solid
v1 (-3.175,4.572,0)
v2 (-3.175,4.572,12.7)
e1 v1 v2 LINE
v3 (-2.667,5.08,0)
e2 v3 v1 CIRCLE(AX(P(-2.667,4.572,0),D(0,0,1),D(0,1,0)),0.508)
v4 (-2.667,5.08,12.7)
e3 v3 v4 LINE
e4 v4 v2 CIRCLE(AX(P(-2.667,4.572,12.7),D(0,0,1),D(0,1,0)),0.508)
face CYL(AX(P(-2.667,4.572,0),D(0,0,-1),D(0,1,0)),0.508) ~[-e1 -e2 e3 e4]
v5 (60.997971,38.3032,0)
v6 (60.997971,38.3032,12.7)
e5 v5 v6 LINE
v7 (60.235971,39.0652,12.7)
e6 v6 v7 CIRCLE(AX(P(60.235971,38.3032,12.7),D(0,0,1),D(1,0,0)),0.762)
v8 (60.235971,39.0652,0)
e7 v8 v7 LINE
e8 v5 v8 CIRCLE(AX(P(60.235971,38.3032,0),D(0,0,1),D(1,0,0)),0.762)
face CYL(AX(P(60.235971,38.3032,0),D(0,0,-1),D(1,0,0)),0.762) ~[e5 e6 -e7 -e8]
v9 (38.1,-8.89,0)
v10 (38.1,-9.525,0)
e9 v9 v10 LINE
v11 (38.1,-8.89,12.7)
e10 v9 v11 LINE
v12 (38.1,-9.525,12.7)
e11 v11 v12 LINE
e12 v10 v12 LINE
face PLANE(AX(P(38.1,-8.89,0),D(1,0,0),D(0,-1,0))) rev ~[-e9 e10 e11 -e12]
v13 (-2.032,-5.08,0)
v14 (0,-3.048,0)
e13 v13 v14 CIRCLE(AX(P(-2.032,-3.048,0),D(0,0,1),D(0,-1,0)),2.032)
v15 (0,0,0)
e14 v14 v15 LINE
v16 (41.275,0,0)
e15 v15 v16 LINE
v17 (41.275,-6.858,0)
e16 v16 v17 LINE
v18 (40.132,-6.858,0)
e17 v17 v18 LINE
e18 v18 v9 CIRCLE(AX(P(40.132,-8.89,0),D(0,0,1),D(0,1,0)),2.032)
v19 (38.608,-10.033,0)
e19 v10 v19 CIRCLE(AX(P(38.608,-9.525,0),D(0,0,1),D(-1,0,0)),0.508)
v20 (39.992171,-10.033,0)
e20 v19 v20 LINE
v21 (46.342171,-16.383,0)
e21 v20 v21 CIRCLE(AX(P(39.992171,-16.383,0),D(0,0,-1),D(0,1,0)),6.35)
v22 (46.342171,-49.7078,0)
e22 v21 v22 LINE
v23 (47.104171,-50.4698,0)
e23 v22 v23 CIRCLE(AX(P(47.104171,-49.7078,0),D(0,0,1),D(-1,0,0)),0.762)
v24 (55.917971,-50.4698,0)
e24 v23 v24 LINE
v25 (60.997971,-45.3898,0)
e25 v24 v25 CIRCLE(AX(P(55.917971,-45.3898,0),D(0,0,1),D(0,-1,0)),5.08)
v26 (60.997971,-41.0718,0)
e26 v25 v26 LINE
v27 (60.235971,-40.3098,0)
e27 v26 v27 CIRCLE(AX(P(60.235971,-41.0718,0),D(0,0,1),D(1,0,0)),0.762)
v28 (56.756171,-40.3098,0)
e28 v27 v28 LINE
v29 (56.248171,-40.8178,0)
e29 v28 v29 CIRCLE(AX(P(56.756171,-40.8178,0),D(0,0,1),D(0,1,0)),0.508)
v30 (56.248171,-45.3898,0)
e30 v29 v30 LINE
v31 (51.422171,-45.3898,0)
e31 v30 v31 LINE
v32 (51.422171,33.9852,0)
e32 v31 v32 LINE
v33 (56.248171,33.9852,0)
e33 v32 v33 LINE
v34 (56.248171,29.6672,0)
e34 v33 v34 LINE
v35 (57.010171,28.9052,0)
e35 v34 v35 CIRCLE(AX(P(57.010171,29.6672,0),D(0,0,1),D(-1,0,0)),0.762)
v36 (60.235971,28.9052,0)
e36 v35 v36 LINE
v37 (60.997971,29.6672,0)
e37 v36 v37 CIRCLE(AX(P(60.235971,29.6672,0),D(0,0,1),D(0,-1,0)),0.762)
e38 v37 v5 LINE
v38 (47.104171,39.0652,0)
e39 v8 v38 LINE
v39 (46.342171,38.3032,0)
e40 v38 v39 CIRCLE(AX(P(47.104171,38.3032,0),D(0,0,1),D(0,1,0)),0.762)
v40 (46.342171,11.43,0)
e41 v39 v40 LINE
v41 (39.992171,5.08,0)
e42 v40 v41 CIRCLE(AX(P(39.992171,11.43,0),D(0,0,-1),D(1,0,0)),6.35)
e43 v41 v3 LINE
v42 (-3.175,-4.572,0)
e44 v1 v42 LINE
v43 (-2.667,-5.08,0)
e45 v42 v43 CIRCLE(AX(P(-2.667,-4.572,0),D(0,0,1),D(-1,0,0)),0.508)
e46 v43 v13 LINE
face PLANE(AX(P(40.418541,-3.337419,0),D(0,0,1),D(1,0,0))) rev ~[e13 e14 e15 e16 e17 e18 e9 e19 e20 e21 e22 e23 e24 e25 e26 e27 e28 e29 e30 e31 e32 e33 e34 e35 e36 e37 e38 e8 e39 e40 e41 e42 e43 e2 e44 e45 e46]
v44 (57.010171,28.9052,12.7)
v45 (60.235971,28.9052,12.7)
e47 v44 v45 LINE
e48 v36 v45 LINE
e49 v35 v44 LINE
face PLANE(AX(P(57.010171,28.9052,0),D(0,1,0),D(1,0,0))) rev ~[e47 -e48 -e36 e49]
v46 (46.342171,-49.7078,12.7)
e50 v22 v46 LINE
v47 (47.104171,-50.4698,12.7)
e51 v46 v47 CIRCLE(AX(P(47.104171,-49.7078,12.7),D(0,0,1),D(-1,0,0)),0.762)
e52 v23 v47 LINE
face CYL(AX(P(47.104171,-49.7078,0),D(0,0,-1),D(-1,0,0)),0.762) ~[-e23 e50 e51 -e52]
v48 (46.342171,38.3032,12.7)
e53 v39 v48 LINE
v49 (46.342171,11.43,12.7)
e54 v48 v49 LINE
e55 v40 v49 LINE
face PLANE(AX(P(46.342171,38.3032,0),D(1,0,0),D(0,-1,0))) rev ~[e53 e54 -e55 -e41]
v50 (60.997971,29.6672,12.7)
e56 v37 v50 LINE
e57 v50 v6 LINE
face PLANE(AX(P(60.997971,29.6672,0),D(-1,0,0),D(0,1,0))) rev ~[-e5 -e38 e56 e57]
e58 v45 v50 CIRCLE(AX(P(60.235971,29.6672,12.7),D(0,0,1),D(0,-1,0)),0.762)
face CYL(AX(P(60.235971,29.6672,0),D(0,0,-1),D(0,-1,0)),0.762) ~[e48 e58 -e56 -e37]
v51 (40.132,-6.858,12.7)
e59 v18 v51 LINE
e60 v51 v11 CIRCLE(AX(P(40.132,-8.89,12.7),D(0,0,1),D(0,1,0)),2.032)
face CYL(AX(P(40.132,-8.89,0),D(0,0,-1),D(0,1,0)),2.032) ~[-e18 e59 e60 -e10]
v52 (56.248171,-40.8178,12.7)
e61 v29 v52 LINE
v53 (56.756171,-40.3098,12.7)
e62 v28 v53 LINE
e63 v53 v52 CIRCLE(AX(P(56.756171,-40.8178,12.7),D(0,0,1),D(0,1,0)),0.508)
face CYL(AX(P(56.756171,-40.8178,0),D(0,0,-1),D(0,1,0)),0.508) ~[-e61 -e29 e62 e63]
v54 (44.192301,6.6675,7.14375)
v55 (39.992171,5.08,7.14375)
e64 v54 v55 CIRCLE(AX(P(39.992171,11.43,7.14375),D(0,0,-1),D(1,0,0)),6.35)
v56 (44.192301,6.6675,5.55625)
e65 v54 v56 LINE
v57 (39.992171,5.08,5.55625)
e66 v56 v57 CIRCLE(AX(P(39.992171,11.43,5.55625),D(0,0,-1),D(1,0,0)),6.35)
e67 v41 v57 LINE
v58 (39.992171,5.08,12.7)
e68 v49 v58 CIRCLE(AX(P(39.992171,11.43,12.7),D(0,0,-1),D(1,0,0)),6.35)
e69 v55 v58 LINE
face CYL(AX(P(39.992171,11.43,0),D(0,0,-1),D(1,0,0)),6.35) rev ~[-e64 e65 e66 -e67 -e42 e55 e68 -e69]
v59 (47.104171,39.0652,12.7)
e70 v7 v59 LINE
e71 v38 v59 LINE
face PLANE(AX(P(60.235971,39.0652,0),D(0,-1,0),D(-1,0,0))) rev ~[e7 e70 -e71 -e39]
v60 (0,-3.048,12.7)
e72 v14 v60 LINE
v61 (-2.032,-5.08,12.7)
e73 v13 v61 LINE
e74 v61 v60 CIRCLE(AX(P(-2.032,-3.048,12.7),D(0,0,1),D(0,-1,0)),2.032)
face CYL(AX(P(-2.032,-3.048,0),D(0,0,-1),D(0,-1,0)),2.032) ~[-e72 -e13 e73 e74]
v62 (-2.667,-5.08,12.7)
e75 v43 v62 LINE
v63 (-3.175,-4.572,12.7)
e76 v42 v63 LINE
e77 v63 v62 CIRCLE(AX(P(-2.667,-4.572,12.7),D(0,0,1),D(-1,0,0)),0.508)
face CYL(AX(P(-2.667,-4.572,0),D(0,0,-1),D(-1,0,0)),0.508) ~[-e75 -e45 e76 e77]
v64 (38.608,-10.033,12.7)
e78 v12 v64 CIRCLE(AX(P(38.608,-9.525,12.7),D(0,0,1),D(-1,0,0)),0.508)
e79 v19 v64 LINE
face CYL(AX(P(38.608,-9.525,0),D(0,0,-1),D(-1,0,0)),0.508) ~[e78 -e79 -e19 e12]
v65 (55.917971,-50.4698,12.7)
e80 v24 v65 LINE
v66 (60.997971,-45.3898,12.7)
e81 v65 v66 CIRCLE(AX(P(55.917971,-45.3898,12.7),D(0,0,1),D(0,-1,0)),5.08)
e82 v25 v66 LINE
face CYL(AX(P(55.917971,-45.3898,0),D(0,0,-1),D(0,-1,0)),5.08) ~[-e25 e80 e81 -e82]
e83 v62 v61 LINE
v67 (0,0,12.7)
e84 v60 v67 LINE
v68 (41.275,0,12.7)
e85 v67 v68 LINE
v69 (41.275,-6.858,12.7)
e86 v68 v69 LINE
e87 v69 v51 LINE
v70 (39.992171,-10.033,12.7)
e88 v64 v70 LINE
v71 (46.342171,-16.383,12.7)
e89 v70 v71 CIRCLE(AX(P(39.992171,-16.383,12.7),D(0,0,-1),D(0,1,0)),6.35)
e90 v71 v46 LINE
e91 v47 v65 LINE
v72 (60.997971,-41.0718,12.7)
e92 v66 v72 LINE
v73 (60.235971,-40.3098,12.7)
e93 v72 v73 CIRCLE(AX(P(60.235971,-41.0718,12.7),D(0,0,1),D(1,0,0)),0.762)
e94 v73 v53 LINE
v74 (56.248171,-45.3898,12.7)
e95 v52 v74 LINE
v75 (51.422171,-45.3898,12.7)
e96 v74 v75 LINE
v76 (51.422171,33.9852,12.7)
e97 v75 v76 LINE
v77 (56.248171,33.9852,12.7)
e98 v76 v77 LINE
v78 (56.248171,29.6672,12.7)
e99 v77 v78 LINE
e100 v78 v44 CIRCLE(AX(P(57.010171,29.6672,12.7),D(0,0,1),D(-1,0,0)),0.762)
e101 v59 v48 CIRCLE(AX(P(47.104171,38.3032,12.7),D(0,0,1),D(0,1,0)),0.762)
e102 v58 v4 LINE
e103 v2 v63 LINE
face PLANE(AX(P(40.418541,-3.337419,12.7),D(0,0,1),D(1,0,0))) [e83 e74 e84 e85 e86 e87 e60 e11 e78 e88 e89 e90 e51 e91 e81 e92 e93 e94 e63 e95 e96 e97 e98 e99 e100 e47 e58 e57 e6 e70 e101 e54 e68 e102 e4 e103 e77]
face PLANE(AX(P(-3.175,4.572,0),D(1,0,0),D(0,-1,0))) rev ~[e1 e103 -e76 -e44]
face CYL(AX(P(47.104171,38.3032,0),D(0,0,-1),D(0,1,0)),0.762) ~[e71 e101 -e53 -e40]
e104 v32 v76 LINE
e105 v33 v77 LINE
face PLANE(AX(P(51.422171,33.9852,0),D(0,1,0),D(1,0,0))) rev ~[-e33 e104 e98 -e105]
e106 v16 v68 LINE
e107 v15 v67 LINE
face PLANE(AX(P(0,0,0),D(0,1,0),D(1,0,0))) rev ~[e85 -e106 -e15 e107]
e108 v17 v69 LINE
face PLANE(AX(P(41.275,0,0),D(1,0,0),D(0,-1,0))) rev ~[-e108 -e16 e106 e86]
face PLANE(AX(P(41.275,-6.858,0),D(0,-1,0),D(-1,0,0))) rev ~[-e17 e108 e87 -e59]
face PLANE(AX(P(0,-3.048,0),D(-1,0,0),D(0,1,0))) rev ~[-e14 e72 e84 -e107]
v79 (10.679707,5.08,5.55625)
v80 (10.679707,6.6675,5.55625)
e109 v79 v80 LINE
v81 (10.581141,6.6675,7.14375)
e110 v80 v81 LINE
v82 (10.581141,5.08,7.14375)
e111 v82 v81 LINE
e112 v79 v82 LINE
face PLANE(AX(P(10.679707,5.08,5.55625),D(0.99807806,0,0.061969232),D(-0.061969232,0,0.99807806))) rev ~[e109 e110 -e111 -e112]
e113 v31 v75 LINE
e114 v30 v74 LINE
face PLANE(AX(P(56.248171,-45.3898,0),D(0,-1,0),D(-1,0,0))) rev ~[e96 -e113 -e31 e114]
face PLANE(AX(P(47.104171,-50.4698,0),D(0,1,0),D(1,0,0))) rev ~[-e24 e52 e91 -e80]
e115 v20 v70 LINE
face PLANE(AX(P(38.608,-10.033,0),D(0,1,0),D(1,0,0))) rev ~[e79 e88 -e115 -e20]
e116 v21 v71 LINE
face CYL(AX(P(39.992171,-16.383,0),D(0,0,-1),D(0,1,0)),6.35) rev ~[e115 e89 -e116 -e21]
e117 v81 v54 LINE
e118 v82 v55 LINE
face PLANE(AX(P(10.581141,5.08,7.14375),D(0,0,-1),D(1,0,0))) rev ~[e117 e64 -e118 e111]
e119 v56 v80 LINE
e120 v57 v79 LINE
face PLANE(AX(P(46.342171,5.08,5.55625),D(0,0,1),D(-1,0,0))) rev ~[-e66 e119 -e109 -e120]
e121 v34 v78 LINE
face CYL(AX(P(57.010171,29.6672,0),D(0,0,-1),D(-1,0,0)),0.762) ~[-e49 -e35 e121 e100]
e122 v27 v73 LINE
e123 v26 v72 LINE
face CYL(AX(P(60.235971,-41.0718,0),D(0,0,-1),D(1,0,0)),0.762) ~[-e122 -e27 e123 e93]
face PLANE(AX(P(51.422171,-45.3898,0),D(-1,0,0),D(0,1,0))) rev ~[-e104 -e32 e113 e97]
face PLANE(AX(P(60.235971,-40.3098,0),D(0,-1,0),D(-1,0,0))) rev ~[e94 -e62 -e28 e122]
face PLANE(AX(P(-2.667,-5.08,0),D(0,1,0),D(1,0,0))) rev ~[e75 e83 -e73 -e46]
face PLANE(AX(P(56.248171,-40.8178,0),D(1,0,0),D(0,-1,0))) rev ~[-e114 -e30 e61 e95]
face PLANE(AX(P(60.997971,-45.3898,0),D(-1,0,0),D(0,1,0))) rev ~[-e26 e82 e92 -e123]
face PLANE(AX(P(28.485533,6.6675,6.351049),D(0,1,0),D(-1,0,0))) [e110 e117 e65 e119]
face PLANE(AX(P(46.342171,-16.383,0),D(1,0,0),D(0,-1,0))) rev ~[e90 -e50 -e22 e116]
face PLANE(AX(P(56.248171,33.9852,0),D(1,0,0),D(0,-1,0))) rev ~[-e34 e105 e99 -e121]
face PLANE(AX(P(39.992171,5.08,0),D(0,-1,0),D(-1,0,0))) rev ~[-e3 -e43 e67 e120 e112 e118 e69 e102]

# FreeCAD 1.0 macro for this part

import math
import FreeCAD as App
import Part
import Sketcher
from FreeCAD import Vector
Q = App.Units.Quantity


def add_polygon(sketch, points):
    """Adds a closed chain of lines whose ends are joined by coincident constraints."""
    first, n = sketch.GeometryCount, len(points)
    for a, b in zip(points, points[1:] + points[:1]):
        sketch.addGeometry(Part.LineSegment(App.Vector(*a, 0), App.Vector(*b, 0)), False)
    for i in range(n):
        sketch.addConstraint(Sketcher.Constraint("Coincident", first + i, 2, first + (i + 1) % n, 1))

doc = App.newDocument("Part")
body = doc.addObject("PartDesign::Body", "Body")

# Sketch on XY plane
sketch1 = body.newObject("Sketcher::SketchObject", "Sketch")
sketch1.AttachmentSupport = (doc.getObject("XY_Plane"), [""])
sketch1.MapMode = "FlatFace"
sketch1.addGeometry([
    Part.LineSegment(Vector(0, 0, 0), Vector(41.3, 0, 0)),  # 0
    Part.LineSegment(Vector(41.3, 0, 0), Vector(41.3, -6.9, 0)),  # 1
    Part.LineSegment(Vector(41.3, -6.9, 0), Vector(40.1, -6.9, 0)),  # 2
    Part.ArcOfCircle(Part.Circle(Vector(40.1, -8.9, 0), Vector(0, 0, 1), 2), math.radians(90), math.radians(180)),  # 3
    Part.LineSegment(Vector(38.1, -8.9, 0), Vector(38.1, -9.5, 0)),  # 4
    Part.ArcOfCircle(Part.Circle(Vector(38.6, -9.5, 0), Vector(0, 0, 1), 0.5), math.radians(180), math.radians(270)),  # 5
    Part.LineSegment(Vector(38.6, -10, 0), Vector(40, -10, 0)),  # 6
    Part.ArcOfCircle(Part.Circle(Vector(40, -16.4, 0), Vector(0, 0, 1), 6.3), math.radians(0), math.radians(90)),  # 7
    Part.LineSegment(Vector(46.3, -16.4, 0), Vector(46.3, -49.7, 0)),  # 8
    Part.ArcOfCircle(Part.Circle(Vector(47.1, -49.7, 0), Vector(0, 0, 1), 0.8), math.radians(180), math.radians(270)),  # 9
    Part.LineSegment(Vector(47.1, -50.5, 0), Vector(55.9, -50.5, 0)),  # 10
    Part.ArcOfCircle(Part.Circle(Vector(55.9, -45.4, 0), Vector(0, 0, 1), 5.1), math.radians(-90), math.radians(0)),  # 11
    Part.LineSegment(Vector(61, -45.4, 0), Vector(61, -41.1, 0)),  # 12
    Part.ArcOfCircle(Part.Circle(Vector(60.2, -41.1, 0), Vector(0, 0, 1), 0.8), math.radians(0), math.radians(90)),  # 13
    Part.LineSegment(Vector(60.2, -40.3, 0), Vector(56.8, -40.3, 0)),  # 14
    Part.ArcOfCircle(Part.Circle(Vector(56.8, -40.8, 0), Vector(0, 0, 1), 0.5), math.radians(90), math.radians(180)),  # 15
    Part.LineSegment(Vector(56.2, -40.8, 0), Vector(56.2, -45.4, 0)),  # 16
    Part.LineSegment(Vector(56.2, -45.4, 0), Vector(51.4, -45.4, 0)),  # 17
    Part.LineSegment(Vector(51.4, -45.4, 0), Vector(51.4, 34, 0)),  # 18
    Part.LineSegment(Vector(51.4, 34, 0), Vector(56.2, 34, 0)),  # 19
    Part.LineSegment(Vector(56.2, 34, 0), Vector(56.2, 29.7, 0)),  # 20
    Part.ArcOfCircle(Part.Circle(Vector(57, 29.7, 0), Vector(0, 0, 1), 0.8), math.radians(180), math.radians(270)),  # 21
    Part.LineSegment(Vector(57, 28.9, 0), Vector(60.2, 28.9, 0)),  # 22
    Part.ArcOfCircle(Part.Circle(Vector(60.2, 29.7, 0), Vector(0, 0, 1), 0.8), math.radians(-90), math.radians(0)),  # 23
    Part.LineSegment(Vector(61, 29.7, 0), Vector(61, 38.3, 0)),  # 24
    Part.ArcOfCircle(Part.Circle(Vector(60.2, 38.3, 0), Vector(0, 0, 1), 0.8), math.radians(0), math.radians(90)),  # 25
    Part.LineSegment(Vector(60.2, 39.1, 0), Vector(47.1, 39.1, 0)),  # 26
    Part.ArcOfCircle(Part.Circle(Vector(47.1, 38.3, 0), Vector(0, 0, 1), 0.8), math.radians(90), math.radians(180)),  # 27
    Part.LineSegment(Vector(46.3, 38.3, 0), Vector(46.3, 11.4, 0)),  # 28
    Part.ArcOfCircle(Part.Circle(Vector(40, 11.4, 0), Vector(0, 0, 1), 6.3), math.radians(-90), math.radians(0)),  # 29
    Part.LineSegment(Vector(40, 5.1, 0), Vector(-2.7, 5.1, 0)),  # 30
    Part.ArcOfCircle(Part.Circle(Vector(-2.7, 4.6, 0), Vector(0, 0, 1), 0.5), math.radians(90), math.radians(180)),  # 31
    Part.LineSegment(Vector(-3.2, 4.6, 0), Vector(-3.2, -4.6, 0)),  # 32
    Part.ArcOfCircle(Part.Circle(Vector(-2.7, -4.6, 0), Vector(0, 0, 1), 0.5), math.radians(180), math.radians(270)),  # 33
    Part.LineSegment(Vector(-2.7, -5.1, 0), Vector(-2, -5.1, 0)),  # 34
    Part.ArcOfCircle(Part.Circle(Vector(-2, -3, 0), Vector(0, 0, 1), 2), math.radians(-90), math.radians(0)),  # 35
    Part.LineSegment(Vector(0, -3, 0), Vector(0, 0, 0)),  # 36
], False)
sketch1.addConstraint([
    Sketcher.Constraint("Coincident", 0, 2, 1, 1),
    Sketcher.Constraint("Coincident", 1, 2, 2, 1),
    Sketcher.Constraint("Tangent", 2, 2, 3, 1),
    Sketcher.Constraint("Tangent", 3, 2, 4, 1),
    Sketcher.Constraint("Tangent", 4, 2, 5, 1),
    Sketcher.Constraint("Tangent", 5, 2, 6, 1),
    Sketcher.Constraint("Tangent", 6, 2, 7, 2),
    Sketcher.Constraint("Tangent", 7, 1, 8, 1),
    Sketcher.Constraint("Tangent", 8, 2, 9, 1),
    Sketcher.Constraint("Tangent", 9, 2, 10, 1),
    Sketcher.Constraint("Tangent", 10, 2, 11, 1),
    Sketcher.Constraint("Tangent", 11, 2, 12, 1),
    Sketcher.Constraint("Tangent", 12, 2, 13, 1),
    Sketcher.Constraint("Tangent", 13, 2, 14, 1),
    Sketcher.Constraint("Tangent", 14, 2, 15, 1),
    Sketcher.Constraint("Tangent", 15, 2, 16, 1),
    Sketcher.Constraint("Coincident", 16, 2, 17, 1),
    Sketcher.Constraint("Coincident", 17, 2, 18, 1),
    Sketcher.Constraint("Coincident", 18, 2, 19, 1),
    Sketcher.Constraint("Coincident", 19, 2, 20, 1),
    Sketcher.Constraint("Tangent", 20, 2, 21, 1),
    Sketcher.Constraint("Tangent", 21, 2, 22, 1),
    Sketcher.Constraint("Tangent", 22, 2, 23, 1),
    Sketcher.Constraint("Tangent", 23, 2, 24, 1),
    Sketcher.Constraint("Tangent", 24, 2, 25, 1),
    Sketcher.Constraint("Tangent", 25, 2, 26, 1),
    Sketcher.Constraint("Tangent", 26, 2, 27, 1),
    Sketcher.Constraint("Tangent", 27, 2, 28, 1),
    Sketcher.Constraint("Tangent", 28, 2, 29, 2),
    Sketcher.Constraint("Tangent", 29, 1, 30, 1),
    Sketcher.Constraint("Tangent", 30, 2, 31, 1),
    Sketcher.Constraint("Tangent", 31, 2, 32, 1),
    Sketcher.Constraint("Tangent", 32, 2, 33, 1),
    Sketcher.Constraint("Tangent", 33, 2, 34, 1),
    Sketcher.Constraint("Tangent", 34, 2, 35, 1),
    Sketcher.Constraint("Tangent", 35, 2, 36, 1),
    Sketcher.Constraint("Coincident", 36, 2, 0, 1),
    Sketcher.Constraint("Horizontal", 0),
    Sketcher.Constraint("Vertical", 1),
    Sketcher.Constraint("Horizontal", 2),
    Sketcher.Constraint("Vertical", 4),
    Sketcher.Constraint("Horizontal", 6),
    Sketcher.Constraint("Vertical", 8),
    Sketcher.Constraint("Horizontal", 10),
    Sketcher.Constraint("Vertical", 12),
    Sketcher.Constraint("Horizontal", 14),
    Sketcher.Constraint("Vertical", 16),
    Sketcher.Constraint("Horizontal", 17),
    Sketcher.Constraint("Vertical", 18),
    Sketcher.Constraint("Horizontal", 19),
    Sketcher.Constraint("Vertical", 20),
    Sketcher.Constraint("Horizontal", 22),
    Sketcher.Constraint("Vertical", 24),
    Sketcher.Constraint("Horizontal", 26),
    Sketcher.Constraint("Vertical", 28),
    Sketcher.Constraint("Horizontal", 30),
    Sketcher.Constraint("Vertical", 32),
    Sketcher.Constraint("Horizontal", 34),
    Sketcher.Constraint("Vertical", 36),
    Sketcher.Constraint("Coincident", 36, 2, -1, 1),
    Sketcher.Constraint("Equal", 9, 13),
    Sketcher.Constraint("Equal", 5, 15),
    Sketcher.Constraint("Equal", 13, 21),
    Sketcher.Constraint("Equal", 21, 23),
    Sketcher.Constraint("Equal", 23, 25),
    Sketcher.Constraint("Equal", 25, 27),
    Sketcher.Constraint("Equal", 7, 29),
    Sketcher.Constraint("Equal", 15, 31),
    Sketcher.Constraint("Equal", 31, 33),
    Sketcher.Constraint("Equal", 3, 35),
    Sketcher.Constraint("Horizontal", 11, 2, 16, 2),
    Sketcher.Constraint("Vertical", 13, 3, 23, 3),
    Sketcher.Constraint("Vertical", 9, 3, 27, 3),
    Sketcher.Constraint("Vertical", 16, 2, 19, 2),
    Sketcher.Constraint("Equal", 34, 4),
    Sketcher.Constraint("Equal", 12, 20),
    Sketcher.Constraint("Radius", 11, Q("0.2 in")),
    Sketcher.Constraint("Radius", 3, Q("0.08 in")),
    Sketcher.Constraint("Radius", 5, Q("0.02 in")),
    Sketcher.Constraint("Radius", 7, Q("0.25 in")),
    Sketcher.Constraint("Radius", 9, Q("0.03 in")),
    Sketcher.Constraint("DistanceX", 17, 2, 17, 1, Q("0.19 in")),
    Sketcher.Constraint("DistanceY", 1, 2, 1, 1, Q("0.27 in")),
    Sketcher.Constraint("DistanceY", 12, 1, 12, 2, Q("0.17 in")),
    Sketcher.Constraint("DistanceY", 24, 1, 24, 2, Q("0.34 in")),
    Sketcher.Constraint("DistanceY", 32, 2, 32, 1, Q("0.36 in")),
    Sketcher.Constraint("DistanceY", 36, 1, 36, 2, Q("0.12 in")),
    Sketcher.Constraint("DistanceX", -1, 1, 3, 2, Q("1.5 in")),
    Sketcher.Constraint("DistanceX", 8, 2, 17, 2, Q("0.2 in")),
    Sketcher.Constraint("DistanceX", 0, 1, 0, 2, Q("1.625 in")),
    Sketcher.Constraint("DistanceX", 10, 1, 10, 2, Q("0.347 in")),
    Sketcher.Constraint("DistanceX", 34, 1, 34, 2, Q("0.025 in")),
    Sketcher.Constraint("DistanceY", 8, 2, 8, 1, Q("1.312 in")),
    Sketcher.Constraint("DistanceY", 18, 1, 18, 2, Q("3.125 in")),
    Sketcher.Constraint("DistanceX", 6, 1, 6, 2, Q("1.384171 mm")),
])
pad1 = body.newObject("PartDesign::Pad", "Pad")
pad1.Profile = sketch1
pad1.Length = Q("0.5 in")

# Sketch on XZ plane
sketch2 = body.newObject("Sketcher::SketchObject", "Sketch001")
sketch2.AttachmentSupport = (doc.getObject("XZ_Plane"), [""])
sketch2.MapMode = "FlatFace"
sketch2.AttachmentOffset = App.Placement(Vector(0, 0, -0.2 * 25.4), App.Rotation())
add_polygon(sketch2, [(10.7, 5.6), (10.6, 7.1), (46.3, 7.1), (46.3, 5.6)])  # lines 0-3
sketch2.addConstraint([
    Sketcher.Constraint("Horizontal", 1),
    Sketcher.Constraint("Vertical", 2),
    Sketcher.Constraint("Horizontal", 3),
    Sketcher.Constraint("DistanceY", 2, 2, 2, 1, Q("0.0625 in")),
    Sketcher.Constraint("DistanceY", -1, 1, 0, 2, Q("0.28125 in")),
    Sketcher.Constraint("DistanceX", 1, 1, 1, 2, Q("35.76103 mm")),
    Sketcher.Constraint("DistanceX", 3, 2, 3, 1, Q("35.662464 mm")),
    Sketcher.Constraint("DistanceX", -1, 1, 0, 2, Q("10.581141 mm")),
])
pad2 = body.newObject("PartDesign::Pad", "Pad001")
pad2.Profile = sketch2
pad2.Length = Q("0.0625 in")
pad2.Reversed = True

doc.recompute()
